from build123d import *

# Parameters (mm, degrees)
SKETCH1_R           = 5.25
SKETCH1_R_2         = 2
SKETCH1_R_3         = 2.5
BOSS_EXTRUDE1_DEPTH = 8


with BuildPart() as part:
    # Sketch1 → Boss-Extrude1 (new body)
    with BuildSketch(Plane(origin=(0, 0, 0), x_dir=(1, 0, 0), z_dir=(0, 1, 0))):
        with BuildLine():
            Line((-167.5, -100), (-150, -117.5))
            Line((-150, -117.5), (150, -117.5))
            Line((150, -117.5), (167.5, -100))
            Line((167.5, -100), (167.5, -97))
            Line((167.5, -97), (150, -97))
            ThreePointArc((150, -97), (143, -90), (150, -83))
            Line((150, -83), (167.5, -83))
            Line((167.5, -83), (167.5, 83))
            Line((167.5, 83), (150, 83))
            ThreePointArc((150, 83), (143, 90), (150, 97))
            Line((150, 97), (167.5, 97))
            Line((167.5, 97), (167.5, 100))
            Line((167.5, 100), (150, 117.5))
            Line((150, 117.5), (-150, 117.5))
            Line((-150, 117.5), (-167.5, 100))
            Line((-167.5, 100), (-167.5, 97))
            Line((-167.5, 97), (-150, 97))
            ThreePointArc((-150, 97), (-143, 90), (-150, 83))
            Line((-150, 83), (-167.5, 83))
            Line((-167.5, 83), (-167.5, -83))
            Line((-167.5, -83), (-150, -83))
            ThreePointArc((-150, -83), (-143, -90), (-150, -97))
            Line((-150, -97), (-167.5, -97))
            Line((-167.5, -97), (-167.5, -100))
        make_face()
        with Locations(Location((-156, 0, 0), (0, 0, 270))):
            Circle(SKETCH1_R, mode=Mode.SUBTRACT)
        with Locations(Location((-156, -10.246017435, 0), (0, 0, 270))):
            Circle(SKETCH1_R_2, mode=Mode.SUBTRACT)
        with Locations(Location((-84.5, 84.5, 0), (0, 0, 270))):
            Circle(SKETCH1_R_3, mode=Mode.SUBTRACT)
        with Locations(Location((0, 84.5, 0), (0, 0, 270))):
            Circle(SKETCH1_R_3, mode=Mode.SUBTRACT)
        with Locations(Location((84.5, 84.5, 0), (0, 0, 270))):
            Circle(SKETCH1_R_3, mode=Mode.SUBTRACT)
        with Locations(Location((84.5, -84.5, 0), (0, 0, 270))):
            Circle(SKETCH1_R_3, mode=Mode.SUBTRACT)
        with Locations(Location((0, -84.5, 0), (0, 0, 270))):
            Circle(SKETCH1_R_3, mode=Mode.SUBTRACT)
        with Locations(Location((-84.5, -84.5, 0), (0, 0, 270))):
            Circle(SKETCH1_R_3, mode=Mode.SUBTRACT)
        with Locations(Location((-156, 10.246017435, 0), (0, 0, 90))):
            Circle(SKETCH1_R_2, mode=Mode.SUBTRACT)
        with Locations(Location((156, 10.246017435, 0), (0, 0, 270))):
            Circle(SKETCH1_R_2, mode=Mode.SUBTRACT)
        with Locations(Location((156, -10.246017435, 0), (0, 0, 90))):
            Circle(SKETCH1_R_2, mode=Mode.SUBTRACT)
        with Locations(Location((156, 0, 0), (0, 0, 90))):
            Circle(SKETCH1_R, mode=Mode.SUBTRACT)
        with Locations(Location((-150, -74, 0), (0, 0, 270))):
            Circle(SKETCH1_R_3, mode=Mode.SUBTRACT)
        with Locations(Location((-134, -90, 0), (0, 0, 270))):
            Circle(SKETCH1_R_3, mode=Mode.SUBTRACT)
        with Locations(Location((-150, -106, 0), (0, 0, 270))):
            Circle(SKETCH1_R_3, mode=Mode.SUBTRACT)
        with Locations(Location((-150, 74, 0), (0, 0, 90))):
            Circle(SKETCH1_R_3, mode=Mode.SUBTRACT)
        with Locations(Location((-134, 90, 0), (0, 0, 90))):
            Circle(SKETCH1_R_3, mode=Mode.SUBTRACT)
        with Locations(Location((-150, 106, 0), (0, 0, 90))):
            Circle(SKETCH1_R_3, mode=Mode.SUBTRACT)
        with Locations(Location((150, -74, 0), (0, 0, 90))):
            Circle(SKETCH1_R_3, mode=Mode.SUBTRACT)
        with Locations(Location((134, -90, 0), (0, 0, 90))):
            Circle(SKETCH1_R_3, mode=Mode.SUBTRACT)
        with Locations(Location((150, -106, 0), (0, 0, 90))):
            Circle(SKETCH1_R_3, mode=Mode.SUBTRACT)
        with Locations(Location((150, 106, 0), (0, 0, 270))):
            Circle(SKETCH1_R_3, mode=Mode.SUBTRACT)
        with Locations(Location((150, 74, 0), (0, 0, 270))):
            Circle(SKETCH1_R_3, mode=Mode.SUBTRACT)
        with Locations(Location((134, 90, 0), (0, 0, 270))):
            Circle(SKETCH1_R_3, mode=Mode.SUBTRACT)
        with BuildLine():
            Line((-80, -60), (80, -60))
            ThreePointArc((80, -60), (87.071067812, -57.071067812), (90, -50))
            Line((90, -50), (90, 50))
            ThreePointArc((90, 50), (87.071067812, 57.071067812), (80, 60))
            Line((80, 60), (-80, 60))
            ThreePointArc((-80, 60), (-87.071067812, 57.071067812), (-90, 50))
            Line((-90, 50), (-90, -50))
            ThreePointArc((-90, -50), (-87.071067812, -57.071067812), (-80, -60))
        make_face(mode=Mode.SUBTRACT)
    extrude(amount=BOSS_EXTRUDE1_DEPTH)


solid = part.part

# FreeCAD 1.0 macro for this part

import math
import FreeCAD as App
import Part
import Sketcher

V = App.Vector
Q = App.Units.Quantity

doc = App.newDocument("Part")
params = doc.addObject("Spreadsheet::Sheet", "Params")
for row, (alias, value) in enumerate([
    ("sketch1_diameter", "5 mm"),
    ("sketch1_diameter2", "4 mm"),
    ("sketch1_radius", "7 mm"),
    ("sketch1_radius2", "10 mm"),
    ("sketch1_diameter3", "10.5 mm"),
    ("pad1_length", "8 mm"),
], start=1):
    params.set(f"A{row}", alias)
    params.set(f"B{row}", "=" + value)
    params.setAlias(f"B{row}", alias)

body = doc.addObject("PartDesign::Body", "Body")

# Sketch on XZ plane
sketch1 = doc.addObject("Sketcher::SketchObject", "Sketch")
body.addObject(sketch1)
sketch1.AttachmentSupport = (doc.XZ_Plane, [""])
sketch1.MapMode = "FlatFace"
sketch1.addGeometry([
    Part.LineSegment(V(-167.5, 100, 0), V(-150, 117.5, 0)),  # 0
    Part.LineSegment(V(-150, 117.5, 0), V(150, 117.5, 0)),  # 1
    Part.LineSegment(V(150, 117.5, 0), V(167.5, 100, 0)),  # 2
    Part.LineSegment(V(167.5, 100, 0), V(167.5, 97, 0)),  # 3
    Part.LineSegment(V(167.5, 97, 0), V(150, 97, 0)),  # 4
    Part.ArcOfCircle(Part.Circle(V(150, 90, 0), V(0, 0, 1), 7), math.radians(90), math.radians(270)),  # 5
    Part.LineSegment(V(150, 83, 0), V(167.5, 83, 0)),  # 6
    Part.LineSegment(V(167.5, 83, 0), V(167.5, -83, 0)),  # 7
    Part.LineSegment(V(167.5, -83, 0), V(150, -83, 0)),  # 8
    Part.ArcOfCircle(Part.Circle(V(150, -90, 0), V(0, 0, 1), 7), math.radians(90), math.radians(270)),  # 9
    Part.LineSegment(V(150, -97, 0), V(167.5, -97, 0)),  # 10
    Part.LineSegment(V(167.5, -97, 0), V(167.5, -100, 0)),  # 11
    Part.LineSegment(V(167.5, -100, 0), V(150, -117.5, 0)),  # 12
    Part.LineSegment(V(150, -117.5, 0), V(-150, -117.5, 0)),  # 13
    Part.LineSegment(V(-150, -117.5, 0), V(-167.5, -100, 0)),  # 14
    Part.LineSegment(V(-167.5, -100, 0), V(-167.5, -97, 0)),  # 15
    Part.LineSegment(V(-167.5, -97, 0), V(-150, -97, 0)),  # 16
    Part.ArcOfCircle(Part.Circle(V(-150, -90, 0), V(0, 0, 1), 7), math.radians(-90), math.radians(90)),  # 17
    Part.LineSegment(V(-150, -83, 0), V(-167.5, -83, 0)),  # 18
    Part.LineSegment(V(-167.5, -83, 0), V(-167.5, 83, 0)),  # 19
    Part.LineSegment(V(-167.5, 83, 0), V(-150, 83, 0)),  # 20
    Part.ArcOfCircle(Part.Circle(V(-150, 90, 0), V(0, 0, 1), 7), math.radians(-90), math.radians(90)),  # 21
    Part.LineSegment(V(-150, 97, 0), V(-167.5, 97, 0)),  # 22
    Part.LineSegment(V(-167.5, 97, 0), V(-167.5, 100, 0)),  # 23
    Part.Circle(V(-150, 106, 0), V(0, 0, 1), 2.5),  # 24
    Part.Circle(V(-134, 90, 0), V(0, 0, 1), 2.5),  # 25
    Part.Circle(V(-84.5, 84.5, 0), V(0, 0, 1), 2.5),  # 26
    Part.Circle(V(-150, 74, 0), V(0, 0, 1), 2.5),  # 27
    Part.Circle(V(-156, 10.2, 0), V(0, 0, 1), 2),  # 28
    Part.Circle(V(0, 84.5, 0), V(0, 0, 1), 2.5),  # 29
    Part.Circle(V(84.5, 84.5, 0), V(0, 0, 1), 2.5),  # 30
    Part.Circle(V(150, 106, 0), V(0, 0, 1), 2.5),  # 31
    Part.Circle(V(134, 90, 0), V(0, 0, 1), 2.5),  # 32
    Part.Circle(V(150, 74, 0), V(0, 0, 1), 2.5),  # 33
    Part.Circle(V(156, 10.2, 0), V(0, 0, 1), 2),  # 34
    Part.Circle(V(-156, 0, 0), V(0, 0, 1), 5.2),  # 35
    Part.Circle(V(-156, -10.2, 0), V(0, 0, 1), 2),  # 36
    Part.Circle(V(-150, -74, 0), V(0, 0, 1), 2.5),  # 37
    Part.Circle(V(-134, -90, 0), V(0, 0, 1), 2.5),  # 38
    Part.Circle(V(-150, -106, 0), V(0, 0, 1), 2.5),  # 39
    Part.Circle(V(-84.5, -84.5, 0), V(0, 0, 1), 2.5),  # 40
    Part.LineSegment(V(80, 60, 0), V(-80, 60, 0)),  # 41
    Part.ArcOfCircle(Part.Circle(V(-80, 50, 0), V(0, 0, 1), 10), math.radians(90), math.radians(180)),  # 42
    Part.LineSegment(V(-90, 50, 0), V(-90, -50, 0)),  # 43
    Part.ArcOfCircle(Part.Circle(V(-80, -50, 0), V(0, 0, 1), 10), math.radians(180), math.radians(270)),  # 44
    Part.LineSegment(V(-80, -60, 0), V(80, -60, 0)),  # 45
    Part.ArcOfCircle(Part.Circle(V(80, -50, 0), V(0, 0, 1), 10), math.radians(-90), math.radians(0)),  # 46
    Part.LineSegment(V(90, -50, 0), V(90, 50, 0)),  # 47
    Part.ArcOfCircle(Part.Circle(V(80, 50, 0), V(0, 0, 1), 10), math.radians(0), math.radians(90)),  # 48
    Part.Circle(V(156, 0, 0), V(0, 0, 1), 5.2),  # 49
    Part.Circle(V(156, -10.2, 0), V(0, 0, 1), 2),  # 50
    Part.Circle(V(0, -84.5, 0), V(0, 0, 1), 2.5),  # 51
    Part.Circle(V(150, -74, 0), V(0, 0, 1), 2.5),  # 52
    Part.Circle(V(84.5, -84.5, 0), V(0, 0, 1), 2.5),  # 53
    Part.Circle(V(134, -90, 0), V(0, 0, 1), 2.5),  # 54
    Part.Circle(V(150, -106, 0), V(0, 0, 1), 2.5),  # 55
], False)
sketch1.addConstraint([
    Sketcher.Constraint("Coincident", 0, 2, 1, 1),
    Sketcher.Constraint("Coincident", 1, 2, 2, 1),
    Sketcher.Constraint("Coincident", 2, 2, 3, 1),
    Sketcher.Constraint("Coincident", 3, 2, 4, 1),
    Sketcher.Constraint("Tangent", 4, 2, 5, 1),
    Sketcher.Constraint("Tangent", 5, 2, 6, 1),
    Sketcher.Constraint("Coincident", 6, 2, 7, 1),
    Sketcher.Constraint("Coincident", 7, 2, 8, 1),
    Sketcher.Constraint("Tangent", 8, 2, 9, 1),
    Sketcher.Constraint("Tangent", 9, 2, 10, 1),
    Sketcher.Constraint("Coincident", 10, 2, 11, 1),
    Sketcher.Constraint("Coincident", 11, 2, 12, 1),
    Sketcher.Constraint("Coincident", 12, 2, 13, 1),
    Sketcher.Constraint("Coincident", 13, 2, 14, 1),
    Sketcher.Constraint("Coincident", 14, 2, 15, 1),
    Sketcher.Constraint("Coincident", 15, 2, 16, 1),
    Sketcher.Constraint("Tangent", 16, 2, 17, 1),
    Sketcher.Constraint("Tangent", 17, 2, 18, 1),
    Sketcher.Constraint("Coincident", 18, 2, 19, 1),
    Sketcher.Constraint("Coincident", 19, 2, 20, 1),
    Sketcher.Constraint("Tangent", 20, 2, 21, 1),
    Sketcher.Constraint("Tangent", 21, 2, 22, 1),
    Sketcher.Constraint("Coincident", 22, 2, 23, 1),
    Sketcher.Constraint("Coincident", 23, 2, 0, 1),
    Sketcher.Constraint("Tangent", 41, 2, 42, 1),
    Sketcher.Constraint("Tangent", 42, 2, 43, 1),
    Sketcher.Constraint("Tangent", 43, 2, 44, 1),
    Sketcher.Constraint("Tangent", 44, 2, 45, 1),
    Sketcher.Constraint("Tangent", 45, 2, 46, 1),
    Sketcher.Constraint("Tangent", 46, 2, 47, 1),
    Sketcher.Constraint("Tangent", 47, 2, 48, 1),
    Sketcher.Constraint("Tangent", 48, 2, 41, 1),
    Sketcher.Constraint("Horizontal", 1),
    Sketcher.Constraint("Vertical", 3),
    Sketcher.Constraint("Horizontal", 4),
    Sketcher.Constraint("Horizontal", 6),
    Sketcher.Constraint("Vertical", 7),
    Sketcher.Constraint("Horizontal", 8),
    Sketcher.Constraint("Horizontal", 10),
    Sketcher.Constraint("Vertical", 11),
    Sketcher.Constraint("Horizontal", 13),
    Sketcher.Constraint("Vertical", 15),
    Sketcher.Constraint("Horizontal", 16),
    Sketcher.Constraint("Horizontal", 18),
    Sketcher.Constraint("Vertical", 19),
    Sketcher.Constraint("Horizontal", 20),
    Sketcher.Constraint("Horizontal", 22),
    Sketcher.Constraint("Vertical", 23),
    Sketcher.Constraint("Horizontal", 41),
    Sketcher.Constraint("Vertical", 43),
    Sketcher.Constraint("Horizontal", 45),
    Sketcher.Constraint("Vertical", 47),
    Sketcher.Constraint("Equal", 5, 9),
    Sketcher.Constraint("Equal", 9, 17),
    Sketcher.Constraint("Equal", 17, 21),
    Sketcher.Constraint("Equal", 24, 25),
    Sketcher.Constraint("Equal", 25, 26),
    Sketcher.Constraint("Equal", 26, 27),
    Sketcher.Constraint("Equal", 27, 29),
    Sketcher.Constraint("Equal", 29, 30),
    Sketcher.Constraint("Equal", 30, 31),
    Sketcher.Constraint("Equal", 31, 32),
    Sketcher.Constraint("Equal", 32, 33),
    Sketcher.Constraint("Equal", 28, 34),
    Sketcher.Constraint("Equal", 34, 36),
    Sketcher.Constraint("Equal", 33, 37),
    Sketcher.Constraint("Equal", 37, 38),
    Sketcher.Constraint("Equal", 38, 39),
    Sketcher.Constraint("Equal", 39, 40),
    Sketcher.Constraint("Equal", 42, 44),
    Sketcher.Constraint("Equal", 44, 46),
    Sketcher.Constraint("Equal", 46, 48),
    Sketcher.Constraint("Equal", 35, 49),
    Sketcher.Constraint("Equal", 36, 50),
    Sketcher.Constraint("Equal", 40, 51),
    Sketcher.Constraint("Equal", 51, 52),
    Sketcher.Constraint("Equal", 52, 53),
    Sketcher.Constraint("Equal", 53, 54),
    Sketcher.Constraint("Equal", 54, 55),
    Sketcher.Constraint("Symmetric", 5, 3, 17, 3, -1, 1),
    Sketcher.Constraint("Symmetric", 9, 3, 21, 3, -1, 1),
    Sketcher.Constraint("Symmetric", 34, 3, 36, 3, -1, 1),
    Sketcher.Constraint("Symmetric", 33, 3, 37, 3, -1, 1),
    Sketcher.Constraint("Symmetric", 32, 3, 38, 3, -1, 1),
    Sketcher.Constraint("Symmetric", 31, 3, 39, 3, -1, 1),
    Sketcher.Constraint("Symmetric", 30, 3, 40, 3, -1, 1),
    Sketcher.Constraint("Symmetric", 42, 3, 46, 3, -1, 1),
    Sketcher.Constraint("Symmetric", 35, 3, 49, 3, -1, 1),
    Sketcher.Constraint("Symmetric", 28, 3, 50, 3, -1, 1),
    Sketcher.Constraint("Symmetric", 29, 3, 51, 3, -1, 1),
    Sketcher.Constraint("Symmetric", 27, 3, 52, 3, -1, 1),
    Sketcher.Constraint("Symmetric", 26, 3, 53, 3, -1, 1),
    Sketcher.Constraint("Symmetric", 25, 3, 54, 3, -1, 1),
    Sketcher.Constraint("Symmetric", 24, 3, 55, 3, -1, 1),
    Sketcher.Constraint("Symmetric", 0, 2, 12, 2, -1, 1),
    Sketcher.Constraint("Symmetric", 2, 2, 14, 2, -1, 1),
    Sketcher.Constraint("Symmetric", 11, 2, 23, 2, -1, 1),
    Sketcher.Constraint("Symmetric", 9, 3, 17, 3, -2),
    Sketcher.Constraint("Symmetric", 26, 3, 30, 3, -2),
    Sketcher.Constraint("Symmetric", 24, 3, 31, 3, -2),
    Sketcher.Constraint("Symmetric", 25, 3, 32, 3, -2),
    Sketcher.Constraint("Symmetric", 27, 3, 33, 3, -2),
    Sketcher.Constraint("Symmetric", 28, 3, 34, 3, -2),
    Sketcher.Constraint("Symmetric", 11, 2, 14, 2, -2),
    Sketcher.Constraint("PointOnObject", 29, 3, -2),
    Sketcher.Constraint("PointOnObject", 35, 3, -1),
    Sketcher.Constraint("Perpendicular", 0, 2),
    Sketcher.Constraint("Perpendicular", 12, 14),
    Sketcher.Constraint("Horizontal", 21, 3, 25, 3),
    Sketcher.Constraint("Horizontal", 26, 3, 29, 3),
    Sketcher.Constraint("Vertical", 21, 3, 24, 3),
    Sketcher.Constraint("Vertical", 24, 3, 27, 3),
    Sketcher.Constraint("Vertical", 28, 3, 35, 3),
    Sketcher.Constraint("Vertical", 39, 3, 0, 2),
    Sketcher.Constraint("Vertical", 55, 3, 1, 2),
    Sketcher.Constraint("Vertical", 3, 2, 6, 2),
    Sketcher.Constraint("Vertical", 15, 2, 18, 2),
    Sketcher.Constraint("Diameter", 24, Q("5 mm")),
    Sketcher.Constraint("Diameter", 28, Q("4 mm")),
    Sketcher.Constraint("Radius", 5, Q("7 mm")),
    Sketcher.Constraint("Radius", 42, Q("10 mm")),
    Sketcher.Constraint("Diameter", 35, Q("10.5 mm")),
    Sketcher.Constraint("DistanceX", 1, 1, 1, 2, Q("300 mm")),
    Sketcher.Constraint("DistanceX", 41, 2, 41, 1, Q("160 mm")),
    Sketcher.Constraint("DistanceY", 3, 2, 3, 1, Q("3 mm")),
    Sketcher.Constraint("DistanceY", 7, 2, 7, 1, Q("166 mm")),
    Sketcher.Constraint("DistanceY", 43, 2, 43, 1, Q("100 mm")),
    Sketcher.Constraint("DistanceX", 4, 2, 4, 1, Q("17.5 mm")),
    Sketcher.Constraint("DistanceY", -1, 1, 24, 3, Q("106 mm")),
    Sketcher.Constraint("DistanceX", 25, 3, -1, 1, Q("134 mm")),
    Sketcher.Constraint("DistanceY", -1, 1, 27, 3, Q("74 mm")),
    Sketcher.Constraint("DistanceX", 28, 3, -1, 1, Q("156 mm")),
    Sketcher.Constraint("DistanceX", 26, 3, -1, 1, Q("84.5 mm")),
    Sketcher.Constraint("DistanceY", -1, 1, 26, 3, Q("84.5 mm")),
    Sketcher.Constraint("DistanceY", -1, 1, 28, 3, Q("10.246017 mm")),
])
sketch1.setExpression("Constraints[117]", "Params.sketch1_diameter")
sketch1.setExpression("Constraints[118]", "Params.sketch1_diameter2")
sketch1.setExpression("Constraints[119]", "Params.sketch1_radius")
sketch1.setExpression("Constraints[120]", "Params.sketch1_radius2")
sketch1.setExpression("Constraints[121]", "Params.sketch1_diameter3")
pad1 = doc.addObject("PartDesign::Pad", "Pad")
body.addObject(pad1)
pad1.Profile = sketch1
pad1.setExpression("Length", "Params.pad1_length")
pad1.Reversed = True

doc.recompute()
